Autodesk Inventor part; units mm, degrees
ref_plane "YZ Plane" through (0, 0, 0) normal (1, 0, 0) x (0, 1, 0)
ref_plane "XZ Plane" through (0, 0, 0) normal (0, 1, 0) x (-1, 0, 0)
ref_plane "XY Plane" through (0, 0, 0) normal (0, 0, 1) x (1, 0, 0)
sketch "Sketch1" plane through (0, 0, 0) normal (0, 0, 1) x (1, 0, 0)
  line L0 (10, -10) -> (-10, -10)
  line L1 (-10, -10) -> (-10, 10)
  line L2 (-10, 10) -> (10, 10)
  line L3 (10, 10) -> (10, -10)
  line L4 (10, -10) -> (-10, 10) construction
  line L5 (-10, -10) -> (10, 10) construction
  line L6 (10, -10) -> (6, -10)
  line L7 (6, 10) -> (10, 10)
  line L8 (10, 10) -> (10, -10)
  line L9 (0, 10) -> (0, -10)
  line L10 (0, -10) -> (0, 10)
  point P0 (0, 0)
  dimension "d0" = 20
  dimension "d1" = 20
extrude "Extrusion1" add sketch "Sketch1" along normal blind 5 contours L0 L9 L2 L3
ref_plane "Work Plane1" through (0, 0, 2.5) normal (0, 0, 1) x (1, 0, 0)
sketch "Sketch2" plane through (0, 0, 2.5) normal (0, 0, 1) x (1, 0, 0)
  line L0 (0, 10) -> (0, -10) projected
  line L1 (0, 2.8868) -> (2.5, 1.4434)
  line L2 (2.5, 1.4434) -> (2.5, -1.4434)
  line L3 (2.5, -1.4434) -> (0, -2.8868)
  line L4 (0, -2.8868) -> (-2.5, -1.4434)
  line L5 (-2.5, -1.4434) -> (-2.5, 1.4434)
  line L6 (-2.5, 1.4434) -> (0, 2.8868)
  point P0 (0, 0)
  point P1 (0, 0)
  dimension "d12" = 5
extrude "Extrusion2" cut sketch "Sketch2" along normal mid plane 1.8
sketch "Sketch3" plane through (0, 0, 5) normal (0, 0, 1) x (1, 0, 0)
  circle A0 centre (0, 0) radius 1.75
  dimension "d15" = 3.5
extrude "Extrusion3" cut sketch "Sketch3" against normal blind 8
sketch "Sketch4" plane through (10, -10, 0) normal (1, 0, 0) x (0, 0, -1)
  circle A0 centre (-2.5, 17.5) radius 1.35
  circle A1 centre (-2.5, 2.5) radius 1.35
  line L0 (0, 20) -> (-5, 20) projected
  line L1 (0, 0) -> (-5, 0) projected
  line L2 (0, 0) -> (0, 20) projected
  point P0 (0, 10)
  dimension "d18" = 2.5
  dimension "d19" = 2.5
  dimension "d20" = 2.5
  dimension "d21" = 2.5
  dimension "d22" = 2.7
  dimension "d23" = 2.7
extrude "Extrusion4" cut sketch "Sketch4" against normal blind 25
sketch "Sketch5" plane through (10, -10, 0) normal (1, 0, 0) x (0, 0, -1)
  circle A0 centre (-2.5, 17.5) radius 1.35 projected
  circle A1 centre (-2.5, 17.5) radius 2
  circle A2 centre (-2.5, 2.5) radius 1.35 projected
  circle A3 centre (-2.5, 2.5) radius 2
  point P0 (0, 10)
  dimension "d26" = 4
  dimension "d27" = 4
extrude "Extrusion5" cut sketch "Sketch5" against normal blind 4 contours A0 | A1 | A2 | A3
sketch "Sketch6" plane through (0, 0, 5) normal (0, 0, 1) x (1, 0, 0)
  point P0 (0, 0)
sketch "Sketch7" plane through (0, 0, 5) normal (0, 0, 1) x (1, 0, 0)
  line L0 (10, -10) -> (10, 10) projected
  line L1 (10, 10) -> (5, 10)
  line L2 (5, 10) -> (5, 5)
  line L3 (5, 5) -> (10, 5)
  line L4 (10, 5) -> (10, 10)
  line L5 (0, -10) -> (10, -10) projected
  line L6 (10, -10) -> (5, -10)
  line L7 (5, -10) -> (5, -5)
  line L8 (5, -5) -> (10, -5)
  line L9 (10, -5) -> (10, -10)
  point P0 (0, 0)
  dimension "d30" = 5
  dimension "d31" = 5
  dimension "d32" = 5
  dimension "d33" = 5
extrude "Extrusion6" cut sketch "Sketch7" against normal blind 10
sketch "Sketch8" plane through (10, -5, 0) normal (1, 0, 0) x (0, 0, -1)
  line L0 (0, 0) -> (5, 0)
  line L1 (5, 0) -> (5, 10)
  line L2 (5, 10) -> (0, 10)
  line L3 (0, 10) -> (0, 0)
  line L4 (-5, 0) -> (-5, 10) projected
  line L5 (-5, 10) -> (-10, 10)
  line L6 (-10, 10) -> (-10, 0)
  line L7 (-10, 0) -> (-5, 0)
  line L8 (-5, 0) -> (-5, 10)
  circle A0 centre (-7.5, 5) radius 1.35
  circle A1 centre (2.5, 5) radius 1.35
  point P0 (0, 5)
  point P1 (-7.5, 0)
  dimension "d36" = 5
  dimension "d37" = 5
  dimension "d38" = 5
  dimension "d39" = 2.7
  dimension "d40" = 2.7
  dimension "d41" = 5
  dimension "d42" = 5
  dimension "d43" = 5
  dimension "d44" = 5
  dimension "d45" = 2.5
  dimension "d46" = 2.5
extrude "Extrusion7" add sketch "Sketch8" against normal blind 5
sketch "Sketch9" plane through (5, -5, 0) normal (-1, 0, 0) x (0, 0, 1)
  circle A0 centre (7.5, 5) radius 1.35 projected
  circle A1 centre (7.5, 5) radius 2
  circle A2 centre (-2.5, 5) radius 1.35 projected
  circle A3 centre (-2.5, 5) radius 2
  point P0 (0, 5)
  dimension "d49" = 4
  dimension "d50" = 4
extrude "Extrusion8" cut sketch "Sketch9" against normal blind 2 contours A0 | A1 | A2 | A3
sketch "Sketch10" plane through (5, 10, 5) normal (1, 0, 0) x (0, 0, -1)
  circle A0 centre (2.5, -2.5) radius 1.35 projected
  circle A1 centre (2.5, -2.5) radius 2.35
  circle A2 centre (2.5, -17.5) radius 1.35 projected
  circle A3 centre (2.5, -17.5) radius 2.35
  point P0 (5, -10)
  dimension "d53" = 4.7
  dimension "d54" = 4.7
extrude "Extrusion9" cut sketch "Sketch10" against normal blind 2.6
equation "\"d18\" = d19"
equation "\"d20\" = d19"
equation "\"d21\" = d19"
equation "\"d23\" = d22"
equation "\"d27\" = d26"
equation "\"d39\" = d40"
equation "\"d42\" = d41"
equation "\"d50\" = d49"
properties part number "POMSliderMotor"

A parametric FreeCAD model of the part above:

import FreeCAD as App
import Part
import Sketcher

V = App.Vector
Q = App.Units.Quantity


def add_polygon(sketch, points):
    """Adds a closed chain of lines whose ends are joined by coincident constraints."""
    first, n = sketch.GeometryCount, len(points)
    for a, b in zip(points, points[1:] + points[:1]):
        sketch.addGeometry(Part.LineSegment(App.Vector(*a, 0), App.Vector(*b, 0)), False)
    for i in range(n):
        sketch.addConstraint(Sketcher.Constraint("Coincident", first + i, 2, first + (i + 1) % n, 1))

doc = App.newDocument("Part")
body = doc.addObject("PartDesign::Body", "Body")

sketch1 = body.newObject("Sketcher::SketchObject", "Sketch")
sketch1.AttachmentSupport = (doc.getObject("XY_Plane"), [""])
sketch1.MapMode = "FlatFace"
add_polygon(sketch1, [(0, -10), (10, -10), (10, 10), (0, 10)])
sketch1.addConstraint([
    Sketcher.Constraint("Horizontal", 0),
    Sketcher.Constraint("Vertical", 1),
    Sketcher.Constraint("Horizontal", 2),
    Sketcher.Constraint("Vertical", 3),
    Sketcher.Constraint("Symmetric", 2, 2, 3, 2, -1, 1),
    Sketcher.Constraint("DistanceY", 1, 1, 1, 2, Q("20 mm")),
    Sketcher.Constraint("DistanceX", 0, 1, 0, 2, Q("10 mm")),
])
pad1 = body.newObject("PartDesign::Pad", "Pad")
pad1.Profile = sketch1
pad1.Length = 5

sketch2 = body.newObject("Sketcher::SketchObject", "Sketch001")
sketch2.AttachmentSupport = (doc.getObject("XY_Plane"), [""])
sketch2.MapMode = "FlatFace"
sketch2.AttachmentOffset = App.Placement(V(0, 0, 2.5), App.Rotation())
add_polygon(sketch2, [(2.5, 1.4), (0, 2.9), (-2.5, 1.4), (-2.5, -1.4), (0, -2.9), (2.5, -1.4)])
sketch2.addConstraint([
    Sketcher.Constraint("Vertical", 2),
    Sketcher.Constraint("Vertical", 5),
    Sketcher.Constraint("Symmetric", 0, 2, 3, 2, -1, 1),
    Sketcher.Constraint("Symmetric", 1, 2, 4, 2, -1, 1),
    Sketcher.Constraint("PointOnObject", 0, 2, -2),
    Sketcher.Constraint("Parallel", 0, 3),
    Sketcher.Constraint("Horizontal", 2, 2, 4, 2),
    Sketcher.Constraint("DistanceX", 2, 2, 4, 2, Q("5 mm")),
    Sketcher.Constraint("Angle", 0, Q("149.9996 deg")),
    Sketcher.Constraint("DistanceY", 2, 2, 2, 1, Q("2.8868 mm")),
])
pocket1 = body.newObject("PartDesign::Pocket", "Pocket")
pocket1.Profile = sketch2
pocket1.Length = 1.8
pocket1.Midplane = True

sketch3 = body.newObject("Sketcher::SketchObject", "Sketch002")
sketch3.AttachmentSupport = (doc.getObject("XY_Plane"), [""])
sketch3.MapMode = "FlatFace"
sketch3.AttachmentOffset = App.Placement(V(0, 0, 5), App.Rotation())
sketch3.addGeometry(Part.Circle(V(0, 0, 0), V(0, 0, 1), 1.8), False)
sketch3.addConstraint([
    Sketcher.Constraint("Coincident", 0, 3, -1, 1),
    Sketcher.Constraint("Diameter", 0, Q("3.5 mm")),
])
pocket2 = body.newObject("PartDesign::Pocket", "Pocket001")
pocket2.Profile = sketch3
pocket2.Length = 8

sketch4 = body.newObject("Sketcher::SketchObject", "Sketch003")
sketch4.AttachmentSupport = (doc.getObject("YZ_Plane"), [""])
sketch4.MapMode = "FlatFace"
sketch4.AttachmentOffset = App.Placement(V(0, 0, 10), App.Rotation())
sketch4.addGeometry([
    Part.Circle(V(7.5, 2.5, 0), V(0, 0, 1), 1.4),
    Part.Circle(V(-7.5, 2.5, 0), V(0, 0, 1), 1.4),
], False)
sketch4.addConstraint([
    Sketcher.Constraint("Equal", 0, 1),
    Sketcher.Constraint("Symmetric", 0, 3, 1, 3, -2),
    Sketcher.Constraint("Diameter", 0, Q("2.7 mm")),
    Sketcher.Constraint("DistanceY", -1, 1, 0, 3, Q("2.5 mm")),
    Sketcher.Constraint("DistanceX", 1, 3, 0, 3, Q("15 mm")),
])
pocket3 = body.newObject("PartDesign::Pocket", "Pocket002")
pocket3.Profile = sketch4
pocket3.Length = 25

sketch5 = body.newObject("Sketcher::SketchObject", "Sketch004")
sketch5.AttachmentSupport = (doc.getObject("YZ_Plane"), [""])
sketch5.MapMode = "FlatFace"
sketch5.AttachmentOffset = App.Placement(V(0, 0, 10), App.Rotation())
sketch5.addGeometry([
    Part.Circle(V(7.5, 2.5, 0), V(0, 0, 1), 2),
    Part.Circle(V(-7.5, 2.5, 0), V(0, 0, 1), 2),
], False)
sketch5.addConstraint([
    Sketcher.Constraint("Equal", 0, 1),
    Sketcher.Constraint("Symmetric", 0, 3, 1, 3, -2),
    Sketcher.Constraint("Diameter", 0, Q("4 mm")),
    Sketcher.Constraint("DistanceX", 1, 3, 0, 3, Q("15 mm")),
    Sketcher.Constraint("DistanceY", -1, 1, 0, 3, Q("2.5 mm")),
])
pocket4 = body.newObject("PartDesign::Pocket", "Pocket003")
pocket4.Profile = sketch5
pocket4.Length = 4

sketch6 = body.newObject("Sketcher::SketchObject", "Sketch005")
sketch6.AttachmentSupport = (doc.getObject("XY_Plane"), [""])
sketch6.MapMode = "FlatFace"
sketch6.AttachmentOffset = App.Placement(V(0, 0, 5), App.Rotation())
add_polygon(sketch6, [(5, -10), (10, -10), (10, -5), (5, -5)])
add_polygon(sketch6, [(5, 5), (10, 5), (10, 10), (5, 10)])
sketch6.addConstraint([
    Sketcher.Constraint("Horizontal", 0),
    Sketcher.Constraint("Vertical", 1),
    Sketcher.Constraint("Horizontal", 2),
    Sketcher.Constraint("Vertical", 3),
    Sketcher.Constraint("Horizontal", 4),
    Sketcher.Constraint("Vertical", 5),
    Sketcher.Constraint("Horizontal", 6),
    Sketcher.Constraint("Vertical", 7),
    Sketcher.Constraint("Symmetric", 1, 2, 4, 2, -1),
    Sketcher.Constraint("Symmetric", 3, 2, 6, 2, -1),
    Sketcher.Constraint("Equal", 6, 1),
    Sketcher.Constraint("DistanceX", 0, 1, 0, 2, Q("5 mm")),
    Sketcher.Constraint("DistanceY", 1, 2, -1, 1, Q("5 mm")),
    Sketcher.Constraint("DistanceX", -1, 1, 2, 2, Q("5 mm")),
])
pocket5 = body.newObject("PartDesign::Pocket", "Pocket004")
pocket5.Profile = sketch6
pocket5.Length = 10

sketch7 = body.newObject("Sketcher::SketchObject", "Sketch006")
sketch7.AttachmentSupport = (doc.getObject("YZ_Plane"), [""])
sketch7.MapMode = "FlatFace"
sketch7.AttachmentOffset = App.Placement(V(0, 0, 10), App.Rotation())
add_polygon(sketch7, [(5, 0), (-5, 0), (-5, -5), (5, -5)])
sketch7.addGeometry(Part.Circle(V(0, -2.5, 0), V(0, 0, 1), 1.4), False)
add_polygon(sketch7, [(-5, 10), (-5, 5), (5, 5), (5, 10)])
sketch7.addGeometry(Part.Circle(V(0, 7.5, 0), V(0, 0, 1), 1.4), False)
sketch7.addConstraint([
    Sketcher.Constraint("Horizontal", 0),
    Sketcher.Constraint("Vertical", 1),
    Sketcher.Constraint("Horizontal", 2),
    Sketcher.Constraint("Vertical", 3),
    Sketcher.Constraint("Vertical", 5),
    Sketcher.Constraint("Horizontal", 6),
    Sketcher.Constraint("Vertical", 7),
    Sketcher.Constraint("Horizontal", 8),
    Sketcher.Constraint("Equal", 4, 9),
    Sketcher.Constraint("Symmetric", 0, 2, 3, 2, -1, 1),
    Sketcher.Constraint("Symmetric", 2, 2, 5, 2, -1, 1),
    Sketcher.Constraint("PointOnObject", 4, 3, -2),
    Sketcher.Constraint("PointOnObject", 9, 3, -2),
    Sketcher.Constraint("Vertical", 3, 2, 6, 2),
    Sketcher.Constraint("Equal", 3, 5),
    Sketcher.Constraint("Diameter", 4, Q("2.7 mm")),
    Sketcher.Constraint("DistanceY", 1, 2, 1, 1, Q("5 mm")),
    Sketcher.Constraint("DistanceX", 0, 2, -1, 1, Q("5 mm")),
    Sketcher.Constraint("DistanceY", 4, 3, -1, 1, Q("2.5 mm")),
    Sketcher.Constraint("DistanceY", 5, 2, 9, 3, Q("2.5 mm")),
])
pad2 = body.newObject("PartDesign::Pad", "Pad001")
pad2.Profile = sketch7
pad2.Length = 5
pad2.Reversed = True

sketch8 = body.newObject("Sketcher::SketchObject", "Sketch007")
sketch8.AttachmentSupport = (doc.getObject("YZ_Plane"), [""])
sketch8.MapMode = "FlatFace"
sketch8.AttachmentOffset = App.Placement(V(0, 0, 5), App.Rotation())
sketch8.addGeometry([
    Part.Circle(V(0, 7.5, 0), V(0, 0, 1), 2),
    Part.Circle(V(0, -2.5, 0), V(0, 0, 1), 2),
], False)
sketch8.addConstraint([
    Sketcher.Constraint("Equal", 0, 1),
    Sketcher.Constraint("PointOnObject", 0, 3, -2),
    Sketcher.Constraint("PointOnObject", 1, 3, -2),
    Sketcher.Constraint("Diameter", 0, Q("4 mm")),
    Sketcher.Constraint("DistanceY", 1, 3, 0, 3, Q("10 mm")),
    Sketcher.Constraint("DistanceY", -1, 1, 0, 3, Q("7.5 mm")),
])
pocket6 = body.newObject("PartDesign::Pocket", "Pocket005")
pocket6.Profile = sketch8
pocket6.Length = 2
pocket6.Reversed = True

sketch9 = body.newObject("Sketcher::SketchObject", "Sketch008")
sketch9.AttachmentSupport = (doc.getObject("YZ_Plane"), [""])
sketch9.MapMode = "FlatFace"
sketch9.AttachmentOffset = App.Placement(V(0, 0, 5), App.Rotation())
sketch9.addGeometry([
    Part.Circle(V(7.5, 2.5, 0), V(0, 0, 1), 2.4),
    Part.Circle(V(7.5, 2.5, 0), V(0, 0, 1), 1.4),
    Part.Circle(V(-7.5, 2.5, 0), V(0, 0, 1), 2.4),
    Part.Circle(V(-7.5, 2.5, 0), V(0, 0, 1), 1.4),
], False)
sketch9.addConstraint([
    Sketcher.Constraint("Coincident", 1, 3, 0, 3),
    Sketcher.Constraint("Coincident", 3, 3, 2, 3),
    Sketcher.Constraint("Equal", 0, 2),
    Sketcher.Constraint("Equal", 1, 3),
    Sketcher.Constraint("Symmetric", 0, 3, 2, 3, -2),
    Sketcher.Constraint("Diameter", 0, Q("4.7 mm")),
    Sketcher.Constraint("Diameter", 1, Q("2.7 mm")),
    Sketcher.Constraint("DistanceX", 2, 3, 0, 3, Q("15 mm")),
    Sketcher.Constraint("DistanceY", -1, 1, 0, 3, Q("2.5 mm")),
])
pocket7 = body.newObject("PartDesign::Pocket", "Pocket006")
pocket7.Profile = sketch9
pocket7.Length = 2.6

doc.recompute()
